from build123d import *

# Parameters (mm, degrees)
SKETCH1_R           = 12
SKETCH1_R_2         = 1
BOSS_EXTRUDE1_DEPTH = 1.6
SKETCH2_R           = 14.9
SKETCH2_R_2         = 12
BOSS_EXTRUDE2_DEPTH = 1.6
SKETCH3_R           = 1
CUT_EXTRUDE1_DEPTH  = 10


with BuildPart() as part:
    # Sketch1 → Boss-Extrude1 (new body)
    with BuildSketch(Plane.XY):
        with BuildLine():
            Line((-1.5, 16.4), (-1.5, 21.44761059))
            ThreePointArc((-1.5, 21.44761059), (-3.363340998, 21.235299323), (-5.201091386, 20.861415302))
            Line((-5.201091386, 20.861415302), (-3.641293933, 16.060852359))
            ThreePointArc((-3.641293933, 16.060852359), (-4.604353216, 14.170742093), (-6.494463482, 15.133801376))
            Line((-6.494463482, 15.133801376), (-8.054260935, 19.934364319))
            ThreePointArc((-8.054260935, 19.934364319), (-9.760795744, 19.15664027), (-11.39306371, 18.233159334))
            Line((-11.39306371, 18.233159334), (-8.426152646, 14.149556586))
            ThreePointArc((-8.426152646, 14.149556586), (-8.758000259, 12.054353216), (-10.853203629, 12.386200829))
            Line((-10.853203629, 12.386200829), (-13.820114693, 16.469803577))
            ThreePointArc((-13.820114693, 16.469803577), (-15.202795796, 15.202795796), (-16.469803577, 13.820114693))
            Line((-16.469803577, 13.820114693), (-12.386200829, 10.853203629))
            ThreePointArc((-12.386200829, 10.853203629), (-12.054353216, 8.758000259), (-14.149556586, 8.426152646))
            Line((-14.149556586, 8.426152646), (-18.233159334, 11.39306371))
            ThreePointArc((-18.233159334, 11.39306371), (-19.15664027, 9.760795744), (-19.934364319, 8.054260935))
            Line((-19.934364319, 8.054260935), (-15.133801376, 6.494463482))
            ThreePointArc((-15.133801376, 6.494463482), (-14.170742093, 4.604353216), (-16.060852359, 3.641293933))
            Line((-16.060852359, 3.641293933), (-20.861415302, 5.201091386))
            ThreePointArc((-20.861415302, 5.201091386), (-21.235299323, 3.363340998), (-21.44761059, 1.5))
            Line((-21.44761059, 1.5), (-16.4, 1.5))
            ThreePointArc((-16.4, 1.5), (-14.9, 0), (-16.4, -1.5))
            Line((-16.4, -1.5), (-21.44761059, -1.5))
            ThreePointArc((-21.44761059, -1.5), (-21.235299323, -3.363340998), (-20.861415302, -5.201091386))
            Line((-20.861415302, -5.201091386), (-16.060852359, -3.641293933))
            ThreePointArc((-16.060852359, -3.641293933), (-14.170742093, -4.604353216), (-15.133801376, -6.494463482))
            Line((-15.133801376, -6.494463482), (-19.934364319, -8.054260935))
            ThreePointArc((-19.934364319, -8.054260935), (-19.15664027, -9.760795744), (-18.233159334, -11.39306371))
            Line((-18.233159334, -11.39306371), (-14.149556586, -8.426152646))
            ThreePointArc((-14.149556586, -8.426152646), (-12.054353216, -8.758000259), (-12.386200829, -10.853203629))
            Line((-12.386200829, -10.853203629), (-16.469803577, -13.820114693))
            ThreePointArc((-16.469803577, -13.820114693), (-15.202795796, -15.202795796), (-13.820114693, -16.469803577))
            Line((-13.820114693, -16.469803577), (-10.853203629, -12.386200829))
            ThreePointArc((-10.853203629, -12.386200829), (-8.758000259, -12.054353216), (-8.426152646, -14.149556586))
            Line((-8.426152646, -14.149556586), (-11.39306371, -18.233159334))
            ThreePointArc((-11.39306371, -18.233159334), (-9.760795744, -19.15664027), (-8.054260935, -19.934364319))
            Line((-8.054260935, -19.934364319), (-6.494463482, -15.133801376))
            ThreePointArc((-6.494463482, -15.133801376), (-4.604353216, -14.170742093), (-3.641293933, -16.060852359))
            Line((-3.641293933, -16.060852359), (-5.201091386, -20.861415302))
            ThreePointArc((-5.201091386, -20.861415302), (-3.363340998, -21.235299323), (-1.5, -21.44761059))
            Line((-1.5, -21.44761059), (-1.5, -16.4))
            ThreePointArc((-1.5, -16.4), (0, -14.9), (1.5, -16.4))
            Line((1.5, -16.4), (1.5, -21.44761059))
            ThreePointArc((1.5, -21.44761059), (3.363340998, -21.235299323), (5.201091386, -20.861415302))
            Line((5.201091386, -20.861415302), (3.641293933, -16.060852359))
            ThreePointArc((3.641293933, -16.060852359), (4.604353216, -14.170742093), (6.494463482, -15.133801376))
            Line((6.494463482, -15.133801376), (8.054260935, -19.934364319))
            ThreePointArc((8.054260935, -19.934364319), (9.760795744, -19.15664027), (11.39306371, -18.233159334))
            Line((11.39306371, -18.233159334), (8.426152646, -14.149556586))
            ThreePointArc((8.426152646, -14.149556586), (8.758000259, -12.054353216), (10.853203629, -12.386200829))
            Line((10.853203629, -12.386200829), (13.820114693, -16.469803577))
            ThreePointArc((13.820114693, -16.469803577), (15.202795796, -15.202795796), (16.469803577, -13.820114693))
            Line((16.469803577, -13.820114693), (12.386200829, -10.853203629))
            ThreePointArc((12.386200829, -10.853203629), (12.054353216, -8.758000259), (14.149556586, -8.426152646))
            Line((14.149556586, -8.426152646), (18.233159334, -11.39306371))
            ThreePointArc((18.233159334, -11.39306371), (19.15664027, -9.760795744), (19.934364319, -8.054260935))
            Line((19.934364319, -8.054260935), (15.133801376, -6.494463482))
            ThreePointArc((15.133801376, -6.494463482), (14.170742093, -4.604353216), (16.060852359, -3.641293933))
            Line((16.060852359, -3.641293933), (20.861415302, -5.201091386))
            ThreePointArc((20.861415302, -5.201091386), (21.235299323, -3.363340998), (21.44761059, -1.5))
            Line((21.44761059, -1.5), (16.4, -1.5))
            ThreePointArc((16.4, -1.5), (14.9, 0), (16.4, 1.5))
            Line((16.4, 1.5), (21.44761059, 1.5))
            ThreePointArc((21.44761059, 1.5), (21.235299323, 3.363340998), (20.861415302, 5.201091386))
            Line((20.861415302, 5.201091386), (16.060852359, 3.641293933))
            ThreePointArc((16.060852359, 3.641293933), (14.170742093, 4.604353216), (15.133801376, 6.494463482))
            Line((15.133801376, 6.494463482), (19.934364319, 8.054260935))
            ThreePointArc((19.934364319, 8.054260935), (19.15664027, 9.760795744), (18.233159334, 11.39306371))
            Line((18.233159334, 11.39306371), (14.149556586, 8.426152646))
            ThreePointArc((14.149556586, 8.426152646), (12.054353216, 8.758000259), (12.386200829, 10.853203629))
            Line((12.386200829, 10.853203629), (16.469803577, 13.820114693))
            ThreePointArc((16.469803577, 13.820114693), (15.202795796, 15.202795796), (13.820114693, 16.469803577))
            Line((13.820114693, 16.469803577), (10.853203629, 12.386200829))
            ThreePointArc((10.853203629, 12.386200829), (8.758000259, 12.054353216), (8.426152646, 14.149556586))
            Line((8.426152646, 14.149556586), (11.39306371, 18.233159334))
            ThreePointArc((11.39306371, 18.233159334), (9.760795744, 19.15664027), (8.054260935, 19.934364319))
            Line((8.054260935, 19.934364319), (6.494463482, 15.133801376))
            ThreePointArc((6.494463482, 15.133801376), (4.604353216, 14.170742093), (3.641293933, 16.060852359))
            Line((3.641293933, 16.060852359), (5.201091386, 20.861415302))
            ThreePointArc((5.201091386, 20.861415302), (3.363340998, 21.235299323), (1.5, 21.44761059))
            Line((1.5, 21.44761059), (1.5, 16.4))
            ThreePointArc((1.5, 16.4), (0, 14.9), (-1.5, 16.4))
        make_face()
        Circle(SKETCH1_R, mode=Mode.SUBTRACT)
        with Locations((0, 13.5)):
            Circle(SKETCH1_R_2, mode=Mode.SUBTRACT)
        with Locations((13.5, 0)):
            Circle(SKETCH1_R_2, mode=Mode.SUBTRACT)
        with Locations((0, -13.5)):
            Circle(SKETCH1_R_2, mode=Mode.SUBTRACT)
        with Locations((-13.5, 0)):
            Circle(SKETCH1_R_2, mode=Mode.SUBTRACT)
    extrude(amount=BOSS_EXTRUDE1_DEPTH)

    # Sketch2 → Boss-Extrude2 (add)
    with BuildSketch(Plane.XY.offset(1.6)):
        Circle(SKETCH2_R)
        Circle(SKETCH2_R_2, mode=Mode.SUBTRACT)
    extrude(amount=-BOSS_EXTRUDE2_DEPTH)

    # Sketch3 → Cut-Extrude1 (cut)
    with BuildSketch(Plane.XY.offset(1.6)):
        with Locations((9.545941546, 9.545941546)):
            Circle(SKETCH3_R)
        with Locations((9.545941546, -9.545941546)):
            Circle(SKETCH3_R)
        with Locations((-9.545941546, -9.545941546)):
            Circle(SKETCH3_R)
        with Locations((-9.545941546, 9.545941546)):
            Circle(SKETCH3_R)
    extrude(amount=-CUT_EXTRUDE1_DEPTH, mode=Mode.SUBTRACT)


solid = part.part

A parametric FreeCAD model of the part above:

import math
import FreeCAD as App
import Part
import Sketcher

V = App.Vector
Q = App.Units.Quantity

doc = App.newDocument("Part")
params = doc.addObject("Spreadsheet::Sheet", "Params")
for row, (alias, value) in enumerate([
    ("sketch1_diameter", "2 mm"),
    ("sketch1_diameter2", "24 mm"),
    ("sketch1_radius", "21.5 mm"),
    ("sketch1_radius2", "1.5 mm"),
    ("pad1_length", "1.6 mm"),
    ("sketch2_diameter", "24 mm"),
    ("sketch2_diameter2", "29.8 mm"),
    ("pad2_length", "1.6 mm"),
    ("sketch3_diameter", "2 mm"),
    ("pocket1_length", "10 mm"),
], start=1):
    params.set(f"A{row}", alias)
    params.set(f"B{row}", "=" + value)
    params.setAlias(f"B{row}", alias)

body = doc.addObject("PartDesign::Body", "Body")

# Sketch on XY plane
sketch1 = doc.addObject("Sketcher::SketchObject", "Sketch")
body.addObject(sketch1)
sketch1.AttachmentSupport = (doc.XY_Plane, [""])
sketch1.MapMode = "FlatFace"
sketch1.addGeometry(Part.LineSegment(V(-1.5, 16.4, 0), V(-1.5, 21.4, 0)), False)
sketch1.addGeometry(Part.ArcOfCircle(Part.Circle(V(0, 0, 0), V(0, 0, 1), 21.5), math.radians(94), math.radians(104)), False)
sketch1.addGeometry(Part.LineSegment(V(-5.2, 20.9, 0), V(-3.6, 16.1, 0)), False)
sketch1.addGeometry(Part.ArcOfCircle(Part.Circle(V(-5.1, 15.6, 0), V(0, 0, 1), 1.5), math.radians(-162), math.radians(18)), False)
sketch1.addGeometry(Part.LineSegment(V(-6.5, 15.1, 0), V(-8.1, 19.9, 0)), False)
sketch1.addGeometry(Part.ArcOfCircle(Part.Circle(V(0, 0, 0), V(0, 0, 1), 21.5), math.radians(112), math.radians(122)), False)
sketch1.addGeometry(Part.LineSegment(V(-11.4, 18.2, 0), V(-8.4, 14.1, 0)), False)
sketch1.addGeometry(Part.ArcOfCircle(Part.Circle(V(-9.6, 13.3, 0), V(0, 0, 1), 1.5), math.radians(-144), math.radians(36)), False)
sketch1.addGeometry(Part.LineSegment(V(-10.9, 12.4, 0), V(-13.8, 16.5, 0)), False)
sketch1.addGeometry(Part.ArcOfCircle(Part.Circle(V(0, 0, 0), V(0, 0, 1), 21.5), math.radians(130), math.radians(140)), False)
sketch1.addGeometry(Part.LineSegment(V(-16.5, 13.8, 0), V(-12.4, 10.9, 0)), False)
sketch1.addGeometry(Part.ArcOfCircle(Part.Circle(V(-13.3, 9.6, 0), V(0, 0, 1), 1.5), math.radians(-126), math.radians(54)), False)
sketch1.addGeometry(Part.LineSegment(V(-14.1, 8.4, 0), V(-18.2, 11.4, 0)), False)
sketch1.addGeometry(Part.ArcOfCircle(Part.Circle(V(0, 0, 0), V(0, 0, 1), 21.5), math.radians(148), math.radians(158)), False)
sketch1.addGeometry(Part.LineSegment(V(-19.9, 8.1, 0), V(-15.1, 6.5, 0)), False)
sketch1.addGeometry(Part.ArcOfCircle(Part.Circle(V(-15.6, 5.1, 0), V(0, 0, 1), 1.5), math.radians(-108), math.radians(72)), False)
sketch1.addGeometry(Part.LineSegment(V(-16.1, 3.6, 0), V(-20.9, 5.2, 0)), False)
sketch1.addGeometry(Part.ArcOfCircle(Part.Circle(V(0, 0, 0), V(0, 0, 1), 21.5), math.radians(166), math.radians(176)), False)
sketch1.addGeometry(Part.LineSegment(V(-21.4, 1.5, 0), V(-16.4, 1.5, 0)), False)
sketch1.addGeometry(Part.ArcOfCircle(Part.Circle(V(-16.4, 0, 0), V(0, 0, 1), 1.5), math.radians(-90), math.radians(90)), False)
sketch1.addGeometry(Part.LineSegment(V(-16.4, -1.5, 0), V(-21.4, -1.5, 0)), False)
sketch1.addGeometry(Part.ArcOfCircle(Part.Circle(V(0, 0, 0), V(0, 0, 1), 21.5), math.radians(-176), math.radians(-166)), False)
sketch1.addGeometry(Part.LineSegment(V(-20.9, -5.2, 0), V(-16.1, -3.6, 0)), False)
sketch1.addGeometry(Part.ArcOfCircle(Part.Circle(V(-15.6, -5.1, 0), V(0, 0, 1), 1.5), math.radians(-72), math.radians(108)), False)
sketch1.addGeometry(Part.LineSegment(V(-15.1, -6.5, 0), V(-19.9, -8.1, 0)), False)
sketch1.addGeometry(Part.ArcOfCircle(Part.Circle(V(0, 0, 0), V(0, 0, 1), 21.5), math.radians(-158), math.radians(-148)), False)
sketch1.addGeometry(Part.LineSegment(V(-18.2, -11.4, 0), V(-14.1, -8.4, 0)), False)
sketch1.addGeometry(Part.ArcOfCircle(Part.Circle(V(-13.3, -9.6, 0), V(0, 0, 1), 1.5), math.radians(-54), math.radians(126)), False)
sketch1.addGeometry(Part.LineSegment(V(-12.4, -10.9, 0), V(-16.5, -13.8, 0)), False)
sketch1.addGeometry(Part.ArcOfCircle(Part.Circle(V(0, 0, 0), V(0, 0, 1), 21.5), math.radians(-140), math.radians(-130)), False)
sketch1.addGeometry(Part.LineSegment(V(-13.8, -16.5, 0), V(-10.9, -12.4, 0)), False)
sketch1.addGeometry(Part.ArcOfCircle(Part.Circle(V(-9.6, -13.3, 0), V(0, 0, 1), 1.5), math.radians(-36), math.radians(144)), False)
sketch1.addGeometry(Part.LineSegment(V(-8.4, -14.1, 0), V(-11.4, -18.2, 0)), False)
sketch1.addGeometry(Part.ArcOfCircle(Part.Circle(V(0, 0, 0), V(0, 0, 1), 21.5), math.radians(-122), math.radians(-112)), False)
sketch1.addGeometry(Part.LineSegment(V(-8.1, -19.9, 0), V(-6.5, -15.1, 0)), False)
sketch1.addGeometry(Part.ArcOfCircle(Part.Circle(V(-5.1, -15.6, 0), V(0, 0, 1), 1.5), math.radians(-18), math.radians(162)), False)
sketch1.addGeometry(Part.LineSegment(V(-3.6, -16.1, 0), V(-5.2, -20.9, 0)), False)
sketch1.addGeometry(Part.ArcOfCircle(Part.Circle(V(0, 0, 0), V(0, 0, 1), 21.5), math.radians(-104), math.radians(-94)), False)
sketch1.addGeometry(Part.LineSegment(V(-1.5, -21.4, 0), V(-1.5, -16.4, 0)), False)
sketch1.addGeometry(Part.ArcOfCircle(Part.Circle(V(0, -16.4, 0), V(0, 0, 1), 1.5), math.radians(0), math.radians(180)), False)
sketch1.addGeometry(Part.LineSegment(V(1.5, -16.4, 0), V(1.5, -21.4, 0)), False)
sketch1.addGeometry(Part.ArcOfCircle(Part.Circle(V(0, 0, 0), V(0, 0, 1), 21.5), math.radians(-86), math.radians(-76)), False)
sketch1.addGeometry(Part.LineSegment(V(5.2, -20.9, 0), V(3.6, -16.1, 0)), False)
sketch1.addGeometry(Part.ArcOfCircle(Part.Circle(V(5.1, -15.6, 0), V(0, 0, 1), 1.5), math.radians(18), math.radians(198)), False)
sketch1.addGeometry(Part.LineSegment(V(6.5, -15.1, 0), V(8.1, -19.9, 0)), False)
sketch1.addGeometry(Part.ArcOfCircle(Part.Circle(V(0, 0, 0), V(0, 0, 1), 21.5), math.radians(-68), math.radians(-58)), False)
sketch1.addGeometry(Part.LineSegment(V(11.4, -18.2, 0), V(8.4, -14.1, 0)), False)
sketch1.addGeometry(Part.ArcOfCircle(Part.Circle(V(9.6, -13.3, 0), V(0, 0, 1), 1.5), math.radians(36), math.radians(216)), False)
sketch1.addGeometry(Part.LineSegment(V(10.9, -12.4, 0), V(13.8, -16.5, 0)), False)
sketch1.addGeometry(Part.ArcOfCircle(Part.Circle(V(0, 0, 0), V(0, 0, 1), 21.5), math.radians(-50), math.radians(-40)), False)
sketch1.addGeometry(Part.LineSegment(V(16.5, -13.8, 0), V(12.4, -10.9, 0)), False)
sketch1.addGeometry(Part.ArcOfCircle(Part.Circle(V(13.3, -9.6, 0), V(0, 0, 1), 1.5), math.radians(54), math.radians(234)), False)
sketch1.addGeometry(Part.LineSegment(V(14.1, -8.4, 0), V(18.2, -11.4, 0)), False)
sketch1.addGeometry(Part.ArcOfCircle(Part.Circle(V(0, 0, 0), V(0, 0, 1), 21.5), math.radians(-32), math.radians(-22)), False)
sketch1.addGeometry(Part.LineSegment(V(19.9, -8.1, 0), V(15.1, -6.5, 0)), False)
sketch1.addGeometry(Part.ArcOfCircle(Part.Circle(V(15.6, -5.1, 0), V(0, 0, 1), 1.5), math.radians(72), math.radians(252)), False)
sketch1.addGeometry(Part.LineSegment(V(16.1, -3.6, 0), V(20.9, -5.2, 0)), False)
sketch1.addGeometry(Part.ArcOfCircle(Part.Circle(V(0, 0, 0), V(0, 0, 1), 21.5), math.radians(-14), math.radians(-4)), False)
sketch1.addGeometry(Part.LineSegment(V(21.4, -1.5, 0), V(16.4, -1.5, 0)), False)
sketch1.addGeometry(Part.ArcOfCircle(Part.Circle(V(16.4, 0, 0), V(0, 0, 1), 1.5), math.radians(90), math.radians(270)), False)
sketch1.addGeometry(Part.LineSegment(V(16.4, 1.5, 0), V(21.4, 1.5, 0)), False)
sketch1.addGeometry(Part.ArcOfCircle(Part.Circle(V(0, 0, 0), V(0, 0, 1), 21.5), math.radians(4), math.radians(14)), False)
sketch1.addGeometry(Part.LineSegment(V(20.9, 5.2, 0), V(16.1, 3.6, 0)), False)
sketch1.addGeometry(Part.ArcOfCircle(Part.Circle(V(15.6, 5.1, 0), V(0, 0, 1), 1.5), math.radians(108), math.radians(288)), False)
sketch1.addGeometry(Part.LineSegment(V(15.1, 6.5, 0), V(19.9, 8.1, 0)), False)
sketch1.addGeometry(Part.ArcOfCircle(Part.Circle(V(0, 0, 0), V(0, 0, 1), 21.5), math.radians(22), math.radians(32)), False)
sketch1.addGeometry(Part.LineSegment(V(18.2, 11.4, 0), V(14.1, 8.4, 0)), False)
sketch1.addGeometry(Part.ArcOfCircle(Part.Circle(V(13.3, 9.6, 0), V(0, 0, 1), 1.5), math.radians(126), math.radians(306)), False)
sketch1.addGeometry(Part.LineSegment(V(12.4, 10.9, 0), V(16.5, 13.8, 0)), False)
sketch1.addGeometry(Part.ArcOfCircle(Part.Circle(V(0, 0, 0), V(0, 0, 1), 21.5), math.radians(40), math.radians(50)), False)
sketch1.addGeometry(Part.LineSegment(V(13.8, 16.5, 0), V(10.9, 12.4, 0)), False)
sketch1.addGeometry(Part.ArcOfCircle(Part.Circle(V(9.6, 13.3, 0), V(0, 0, 1), 1.5), math.radians(144), math.radians(324)), False)
sketch1.addGeometry(Part.LineSegment(V(8.4, 14.1, 0), V(11.4, 18.2, 0)), False)
sketch1.addGeometry(Part.ArcOfCircle(Part.Circle(V(0, 0, 0), V(0, 0, 1), 21.5), math.radians(58), math.radians(68)), False)
sketch1.addGeometry(Part.LineSegment(V(8.1, 19.9, 0), V(6.5, 15.1, 0)), False)
sketch1.addGeometry(Part.ArcOfCircle(Part.Circle(V(5.1, 15.6, 0), V(0, 0, 1), 1.5), math.radians(162), math.radians(342)), False)
sketch1.addGeometry(Part.LineSegment(V(3.6, 16.1, 0), V(5.2, 20.9, 0)), False)
sketch1.addGeometry(Part.ArcOfCircle(Part.Circle(V(0, 0, 0), V(0, 0, 1), 21.5), math.radians(76), math.radians(86)), False)
sketch1.addGeometry(Part.LineSegment(V(1.5, 21.4, 0), V(1.5, 16.4, 0)), False)
sketch1.addGeometry(Part.ArcOfCircle(Part.Circle(V(0, 16.4, 0), V(0, 0, 1), 1.5), math.radians(180), math.radians(360)), False)
sketch1.addGeometry(Part.Circle(V(0, -13.5, 0), V(0, 0, 1), 1), False)
sketch1.addGeometry(Part.Circle(V(-13.5, 0, 0), V(0, 0, 1), 1), False)
sketch1.addGeometry(Part.Circle(V(0, 0, 0), V(0, 0, 1), 12), False)
sketch1.addGeometry(Part.Circle(V(13.5, 0, 0), V(0, 0, 1), 1), False)
sketch1.addGeometry(Part.Circle(V(0, 13.5, 0), V(0, 0, 1), 1), False)
sketch1.addConstraint(Sketcher.Constraint("Coincident", 0, 2, 1, 1))
sketch1.addConstraint(Sketcher.Constraint("Coincident", 1, 2, 2, 1))
sketch1.addConstraint(Sketcher.Constraint("Tangent", 2, 2, 3, 2))
sketch1.addConstraint(Sketcher.Constraint("Tangent", 3, 1, 4, 1))
sketch1.addConstraint(Sketcher.Constraint("Coincident", 4, 2, 5, 1))
sketch1.addConstraint(Sketcher.Constraint("Coincident", 5, 2, 6, 1))
sketch1.addConstraint(Sketcher.Constraint("Tangent", 6, 2, 7, 2))
sketch1.addConstraint(Sketcher.Constraint("Tangent", 7, 1, 8, 1))
sketch1.addConstraint(Sketcher.Constraint("Coincident", 8, 2, 9, 1))
sketch1.addConstraint(Sketcher.Constraint("Coincident", 9, 2, 10, 1))
sketch1.addConstraint(Sketcher.Constraint("Tangent", 10, 2, 11, 2))
sketch1.addConstraint(Sketcher.Constraint("Tangent", 11, 1, 12, 1))
sketch1.addConstraint(Sketcher.Constraint("Coincident", 12, 2, 13, 1))
sketch1.addConstraint(Sketcher.Constraint("Coincident", 13, 2, 14, 1))
sketch1.addConstraint(Sketcher.Constraint("Tangent", 14, 2, 15, 2))
sketch1.addConstraint(Sketcher.Constraint("Tangent", 15, 1, 16, 1))
sketch1.addConstraint(Sketcher.Constraint("Coincident", 16, 2, 17, 1))
sketch1.addConstraint(Sketcher.Constraint("Coincident", 17, 2, 18, 1))
sketch1.addConstraint(Sketcher.Constraint("Tangent", 18, 2, 19, 2))
sketch1.addConstraint(Sketcher.Constraint("Tangent", 19, 1, 20, 1))
sketch1.addConstraint(Sketcher.Constraint("Coincident", 20, 2, 21, 1))
sketch1.addConstraint(Sketcher.Constraint("Coincident", 21, 2, 22, 1))
sketch1.addConstraint(Sketcher.Constraint("Tangent", 22, 2, 23, 2))
sketch1.addConstraint(Sketcher.Constraint("Tangent", 23, 1, 24, 1))
sketch1.addConstraint(Sketcher.Constraint("Coincident", 24, 2, 25, 1))
sketch1.addConstraint(Sketcher.Constraint("Coincident", 25, 2, 26, 1))
sketch1.addConstraint(Sketcher.Constraint("Tangent", 26, 2, 27, 2))
sketch1.addConstraint(Sketcher.Constraint("Tangent", 27, 1, 28, 1))
sketch1.addConstraint(Sketcher.Constraint("Coincident", 28, 2, 29, 1))
sketch1.addConstraint(Sketcher.Constraint("Coincident", 29, 2, 30, 1))
sketch1.addConstraint(Sketcher.Constraint("Tangent", 30, 2, 31, 2))
sketch1.addConstraint(Sketcher.Constraint("Tangent", 31, 1, 32, 1))
sketch1.addConstraint(Sketcher.Constraint("Coincident", 32, 2, 33, 1))
sketch1.addConstraint(Sketcher.Constraint("Coincident", 33, 2, 34, 1))
sketch1.addConstraint(Sketcher.Constraint("Tangent", 34, 2, 35, 2))
sketch1.addConstraint(Sketcher.Constraint("Tangent", 35, 1, 36, 1))
sketch1.addConstraint(Sketcher.Constraint("Coincident", 36, 2, 37, 1))
sketch1.addConstraint(Sketcher.Constraint("Coincident", 37, 2, 38, 1))
sketch1.addConstraint(Sketcher.Constraint("Tangent", 38, 2, 39, 2))
sketch1.addConstraint(Sketcher.Constraint("Tangent", 39, 1, 40, 1))
sketch1.addConstraint(Sketcher.Constraint("Coincident", 40, 2, 41, 1))
sketch1.addConstraint(Sketcher.Constraint("Coincident", 41, 2, 42, 1))
sketch1.addConstraint(Sketcher.Constraint("Tangent", 42, 2, 43, 2))
sketch1.addConstraint(Sketcher.Constraint("Tangent", 43, 1, 44, 1))
sketch1.addConstraint(Sketcher.Constraint("Coincident", 44, 2, 45, 1))
sketch1.addConstraint(Sketcher.Constraint("Coincident", 45, 2, 46, 1))
sketch1.addConstraint(Sketcher.Constraint("Tangent", 46, 2, 47, 2))
sketch1.addConstraint(Sketcher.Constraint("Tangent", 47, 1, 48, 1))
sketch1.addConstraint(Sketcher.Constraint("Coincident", 48, 2, 49, 1))
sketch1.addConstraint(Sketcher.Constraint("Coincident", 49, 2, 50, 1))
sketch1.addConstraint(Sketcher.Constraint("Tangent", 50, 2, 51, 2))
sketch1.addConstraint(Sketcher.Constraint("Tangent", 51, 1, 52, 1))
sketch1.addConstraint(Sketcher.Constraint("Coincident", 52, 2, 53, 1))
sketch1.addConstraint(Sketcher.Constraint("Coincident", 53, 2, 54, 1))
sketch1.addConstraint(Sketcher.Constraint("Tangent", 54, 2, 55, 2))
sketch1.addConstraint(Sketcher.Constraint("Tangent", 55, 1, 56, 1))
sketch1.addConstraint(Sketcher.Constraint("Coincident", 56, 2, 57, 1))
sketch1.addConstraint(Sketcher.Constraint("Coincident", 57, 2, 58, 1))
sketch1.addConstraint(Sketcher.Constraint("Tangent", 58, 2, 59, 2))
sketch1.addConstraint(Sketcher.Constraint("Tangent", 59, 1, 60, 1))
sketch1.addConstraint(Sketcher.Constraint("Coincident", 60, 2, 61, 1))
sketch1.addConstraint(Sketcher.Constraint("Coincident", 61, 2, 62, 1))
sketch1.addConstraint(Sketcher.Constraint("Tangent", 62, 2, 63, 2))
sketch1.addConstraint(Sketcher.Constraint("Tangent", 63, 1, 64, 1))
sketch1.addConstraint(Sketcher.Constraint("Coincident", 64, 2, 65, 1))
sketch1.addConstraint(Sketcher.Constraint("Coincident", 65, 2, 66, 1))
sketch1.addConstraint(Sketcher.Constraint("Tangent", 66, 2, 67, 2))
sketch1.addConstraint(Sketcher.Constraint("Tangent", 67, 1, 68, 1))
sketch1.addConstraint(Sketcher.Constraint("Coincident", 68, 2, 69, 1))
sketch1.addConstraint(Sketcher.Constraint("Coincident", 69, 2, 70, 1))
sketch1.addConstraint(Sketcher.Constraint("Tangent", 70, 2, 71, 2))
sketch1.addConstraint(Sketcher.Constraint("Tangent", 71, 1, 72, 1))
sketch1.addConstraint(Sketcher.Constraint("Coincident", 72, 2, 73, 1))
sketch1.addConstraint(Sketcher.Constraint("Coincident", 73, 2, 74, 1))
sketch1.addConstraint(Sketcher.Constraint("Tangent", 74, 2, 75, 2))
sketch1.addConstraint(Sketcher.Constraint("Tangent", 75, 1, 76, 1))
sketch1.addConstraint(Sketcher.Constraint("Coincident", 76, 2, 77, 1))
sketch1.addConstraint(Sketcher.Constraint("Coincident", 77, 2, 78, 1))
sketch1.addConstraint(Sketcher.Constraint("Tangent", 78, 2, 79, 2))
sketch1.addConstraint(Sketcher.Constraint("Tangent", 79, 1, 0, 1))
sketch1.addConstraint(Sketcher.Constraint("Vertical", 0))
sketch1.addConstraint(Sketcher.Constraint("Horizontal", 18))
sketch1.addConstraint(Sketcher.Constraint("Horizontal", 20))
sketch1.addConstraint(Sketcher.Constraint("Vertical", 38))
sketch1.addConstraint(Sketcher.Constraint("Vertical", 40))
sketch1.addConstraint(Sketcher.Constraint("Horizontal", 58))
sketch1.addConstraint(Sketcher.Constraint("Horizontal", 60))
sketch1.addConstraint(Sketcher.Constraint("Vertical", 78))
sketch1.addConstraint(Sketcher.Constraint("Coincident", 1, 3, -1, 1))
sketch1.addConstraint(Sketcher.Constraint("Coincident", 5, 3, -1, 1))
sketch1.addConstraint(Sketcher.Constraint("Coincident", 9, 3, -1, 1))
sketch1.addConstraint(Sketcher.Constraint("Coincident", 13, 3, -1, 1))
sketch1.addConstraint(Sketcher.Constraint("Coincident", 17, 3, -1, 1))
sketch1.addConstraint(Sketcher.Constraint("Coincident", 21, 3, -1, 1))
sketch1.addConstraint(Sketcher.Constraint("Coincident", 25, 3, -1, 1))
sketch1.addConstraint(Sketcher.Constraint("Coincident", 29, 3, -1, 1))
sketch1.addConstraint(Sketcher.Constraint("Coincident", 33, 3, -1, 1))
sketch1.addConstraint(Sketcher.Constraint("Coincident", 37, 3, -1, 1))
sketch1.addConstraint(Sketcher.Constraint("Coincident", 41, 3, -1, 1))
sketch1.addConstraint(Sketcher.Constraint("Coincident", 45, 3, -1, 1))
sketch1.addConstraint(Sketcher.Constraint("Coincident", 49, 3, -1, 1))
sketch1.addConstraint(Sketcher.Constraint("Coincident", 53, 3, -1, 1))
sketch1.addConstraint(Sketcher.Constraint("Coincident", 57, 3, -1, 1))
sketch1.addConstraint(Sketcher.Constraint("Coincident", 61, 3, -1, 1))
sketch1.addConstraint(Sketcher.Constraint("Coincident", 65, 3, -1, 1))
sketch1.addConstraint(Sketcher.Constraint("Coincident", 69, 3, -1, 1))
sketch1.addConstraint(Sketcher.Constraint("Coincident", 73, 3, -1, 1))
sketch1.addConstraint(Sketcher.Constraint("Coincident", 77, 3, -1, 1))
sketch1.addConstraint(Sketcher.Constraint("Coincident", 82, 3, -1, 1))
sketch1.addConstraint(Sketcher.Constraint("Equal", 1, 5))
sketch1.addConstraint(Sketcher.Constraint("Equal", 3, 7))
sketch1.addConstraint(Sketcher.Constraint("Equal", 5, 9))
sketch1.addConstraint(Sketcher.Constraint("Equal", 7, 11))
sketch1.addConstraint(Sketcher.Constraint("Equal", 9, 13))
sketch1.addConstraint(Sketcher.Constraint("Equal", 11, 15))
sketch1.addConstraint(Sketcher.Constraint("Equal", 13, 17))
sketch1.addConstraint(Sketcher.Constraint("Equal", 15, 19))
sketch1.addConstraint(Sketcher.Constraint("Equal", 17, 21))
sketch1.addConstraint(Sketcher.Constraint("Equal", 19, 23))
sketch1.addConstraint(Sketcher.Constraint("Equal", 21, 25))
sketch1.addConstraint(Sketcher.Constraint("Equal", 23, 27))
sketch1.addConstraint(Sketcher.Constraint("Equal", 25, 29))
sketch1.addConstraint(Sketcher.Constraint("Equal", 27, 31))
sketch1.addConstraint(Sketcher.Constraint("Equal", 29, 33))
sketch1.addConstraint(Sketcher.Constraint("Equal", 31, 35))
sketch1.addConstraint(Sketcher.Constraint("Equal", 33, 37))
sketch1.addConstraint(Sketcher.Constraint("Equal", 35, 39))
sketch1.addConstraint(Sketcher.Constraint("Equal", 37, 41))
sketch1.addConstraint(Sketcher.Constraint("Equal", 39, 43))
sketch1.addConstraint(Sketcher.Constraint("Equal", 41, 45))
sketch1.addConstraint(Sketcher.Constraint("Equal", 43, 47))
sketch1.addConstraint(Sketcher.Constraint("Equal", 45, 49))
sketch1.addConstraint(Sketcher.Constraint("Equal", 47, 51))
sketch1.addConstraint(Sketcher.Constraint("Equal", 49, 53))
sketch1.addConstraint(Sketcher.Constraint("Equal", 51, 55))
sketch1.addConstraint(Sketcher.Constraint("Equal", 53, 57))
sketch1.addConstraint(Sketcher.Constraint("Equal", 55, 59))
sketch1.addConstraint(Sketcher.Constraint("Equal", 57, 61))
sketch1.addConstraint(Sketcher.Constraint("Equal", 59, 63))
sketch1.addConstraint(Sketcher.Constraint("Equal", 61, 65))
sketch1.addConstraint(Sketcher.Constraint("Equal", 63, 67))
sketch1.addConstraint(Sketcher.Constraint("Equal", 65, 69))
sketch1.addConstraint(Sketcher.Constraint("Equal", 67, 71))
sketch1.addConstraint(Sketcher.Constraint("Equal", 69, 73))
sketch1.addConstraint(Sketcher.Constraint("Equal", 71, 75))
sketch1.addConstraint(Sketcher.Constraint("Equal", 73, 77))
sketch1.addConstraint(Sketcher.Constraint("Equal", 75, 79))
sketch1.addConstraint(Sketcher.Constraint("Equal", 80, 81))
sketch1.addConstraint(Sketcher.Constraint("Equal", 81, 83))
sketch1.addConstraint(Sketcher.Constraint("Equal", 83, 84))
sketch1.addConstraint(Sketcher.Constraint("Symmetric", 3, 3, 43, 3, -1, 1))
sketch1.addConstraint(Sketcher.Constraint("Symmetric", 7, 3, 47, 3, -1, 1))
sketch1.addConstraint(Sketcher.Constraint("Symmetric", 11, 3, 51, 3, -1, 1))
sketch1.addConstraint(Sketcher.Constraint("Symmetric", 15, 3, 55, 3, -1, 1))
sketch1.addConstraint(Sketcher.Constraint("Symmetric", 19, 3, 59, 3, -1, 1))
sketch1.addConstraint(Sketcher.Constraint("Symmetric", 23, 3, 63, 3, -1, 1))
sketch1.addConstraint(Sketcher.Constraint("Symmetric", 27, 3, 67, 3, -1, 1))
sketch1.addConstraint(Sketcher.Constraint("Symmetric", 31, 3, 71, 3, -1, 1))
sketch1.addConstraint(Sketcher.Constraint("Symmetric", 35, 3, 75, 3, -1, 1))
sketch1.addConstraint(Sketcher.Constraint("Symmetric", 39, 3, 79, 3, -1, 1))
sketch1.addConstraint(Sketcher.Constraint("Symmetric", 81, 3, 83, 3, -1, 1))
sketch1.addConstraint(Sketcher.Constraint("Symmetric", 80, 3, 84, 3, -1, 1))
sketch1.addConstraint(Sketcher.Constraint("Symmetric", 35, 3, 43, 3, -2))
sketch1.addConstraint(Sketcher.Constraint("Symmetric", 31, 3, 47, 3, -2))
sketch1.addConstraint(Sketcher.Constraint("Symmetric", 27, 3, 51, 3, -2))
sketch1.addConstraint(Sketcher.Constraint("Symmetric", 23, 3, 55, 3, -2))
sketch1.addConstraint(Sketcher.Constraint("PointOnObject", 19, 3, -1))
sketch1.addConstraint(Sketcher.Constraint("PointOnObject", 39, 3, -2))
sketch1.addConstraint(Sketcher.Constraint("PointOnObject", 80, 3, -2))
sketch1.addConstraint(Sketcher.Constraint("PointOnObject", 81, 3, -1))
sketch1.addConstraint(Sketcher.Constraint("Parallel", 2, 4))
sketch1.addConstraint(Sketcher.Constraint("Parallel", 6, 8))
sketch1.addConstraint(Sketcher.Constraint("Parallel", 10, 12))
sketch1.addConstraint(Sketcher.Constraint("Parallel", 14, 16))
sketch1.addConstraint(Sketcher.Constraint("Perpendicular", 4, 22))
sketch1.addConstraint(Sketcher.Constraint("Parallel", 22, 24))
sketch1.addConstraint(Sketcher.Constraint("Perpendicular", 8, 26))
sketch1.addConstraint(Sketcher.Constraint("Parallel", 26, 28))
sketch1.addConstraint(Sketcher.Constraint("Perpendicular", 12, 30))
sketch1.addConstraint(Sketcher.Constraint("Parallel", 30, 32))
sketch1.addConstraint(Sketcher.Constraint("Perpendicular", 16, 34))
sketch1.addConstraint(Sketcher.Constraint("Parallel", 34, 36))
sketch1.addConstraint(Sketcher.Constraint("Perpendicular", 24, 42))
sketch1.addConstraint(Sketcher.Constraint("Parallel", 42, 44))
sketch1.addConstraint(Sketcher.Constraint("Perpendicular", 28, 46))
sketch1.addConstraint(Sketcher.Constraint("Parallel", 46, 48))
sketch1.addConstraint(Sketcher.Constraint("Perpendicular", 32, 50))
sketch1.addConstraint(Sketcher.Constraint("Parallel", 50, 52))
sketch1.addConstraint(Sketcher.Constraint("Perpendicular", 36, 54))
sketch1.addConstraint(Sketcher.Constraint("Parallel", 54, 56))
sketch1.addConstraint(Sketcher.Constraint("Perpendicular", 44, 62))
sketch1.addConstraint(Sketcher.Constraint("Parallel", 62, 64))
sketch1.addConstraint(Sketcher.Constraint("Perpendicular", 48, 66))
sketch1.addConstraint(Sketcher.Constraint("Parallel", 66, 68))
sketch1.addConstraint(Sketcher.Constraint("Perpendicular", 52, 70))
sketch1.addConstraint(Sketcher.Constraint("Parallel", 70, 72))
sketch1.addConstraint(Sketcher.Constraint("Perpendicular", 56, 74))
sketch1.addConstraint(Sketcher.Constraint("Parallel", 74, 76))
sketch1.addConstraint(Sketcher.Constraint("Horizontal", 36, 2, 41, 2))
sketch1.addConstraint(Sketcher.Constraint("Horizontal", 32, 2, 45, 2))
sketch1.addConstraint(Sketcher.Constraint("Equal", 60, 0))
sketch1.addConstraint(Sketcher.Constraint("Equal", 2, 4))
sketch1.addConstraint(Sketcher.Constraint("Equal", 4, 6))
sketch1.addConstraint(Sketcher.Constraint("Equal", 6, 8))
sketch1.addConstraint(Sketcher.Constraint("Equal", 8, 10))
sketch1.addConstraint(Sketcher.Constraint("Equal", 10, 12))
sketch1.addConstraint(Sketcher.Constraint("Equal", 12, 14))
sketch1.addConstraint(Sketcher.Constraint("Equal", 14, 16))
sketch1.addConstraint(Sketcher.Constraint("Diameter", 80, 2.0))
sketch1.addConstraint(Sketcher.Constraint("Diameter", 82, 24.0))
sketch1.addConstraint(Sketcher.Constraint("Radius", 1, 21.5))
sketch1.addConstraint(Sketcher.Constraint("Radius", 3, 1.5))
sketch1.addConstraint(Sketcher.Constraint("Angle", 2, Q("-72 deg")))
sketch1.addConstraint(Sketcher.Constraint("Angle", 6, Q("-54 deg")))
sketch1.addConstraint(Sketcher.Constraint("DistanceX", 19, 3, -1, 1, 16.4))
sketch1.addConstraint(Sketcher.Constraint("DistanceY", 80, 3, -1, 1, 13.5))
sketch1.addConstraint(Sketcher.Constraint("DistanceX", 81, 3, -1, 1, 13.5))
sketch1.addConstraint(Sketcher.Constraint("DistanceY", -1, 1, 3, 1, 15.133801))
sketch1.setExpression("Constraints[208]", "Params.sketch1_diameter")
sketch1.setExpression("Constraints[209]", "Params.sketch1_diameter2")
sketch1.setExpression("Constraints[210]", "Params.sketch1_radius")
sketch1.setExpression("Constraints[211]", "Params.sketch1_radius2")
pad1 = doc.addObject("PartDesign::Pad", "Pad")
body.addObject(pad1)
pad1.Profile = sketch1
pad1.setExpression("Length", "Params.pad1_length")

# Sketch on XY plane
sketch2 = doc.addObject("Sketcher::SketchObject", "Sketch001")
body.addObject(sketch2)
sketch2.AttachmentSupport = (doc.XY_Plane, [""])
sketch2.MapMode = "FlatFace"
sketch2.AttachmentOffset = App.Placement(V(0, 0, 1.6), App.Rotation())
sketch2.addGeometry(Part.Circle(V(0, 0, 0), V(0, 0, 1), 15), False)
sketch2.addGeometry(Part.Circle(V(0, 0, 0), V(0, 0, 1), 12), False)
sketch2.addConstraint(Sketcher.Constraint("Coincident", 0, 3, -1, 1))
sketch2.addConstraint(Sketcher.Constraint("Coincident", 1, 3, -1, 1))
sketch2.addConstraint(Sketcher.Constraint("Diameter", 1, 24.0))
sketch2.addConstraint(Sketcher.Constraint("Diameter", 0, 29.8))
sketch2.setExpression("Constraints[2]", "Params.sketch2_diameter")
sketch2.setExpression("Constraints[3]", "Params.sketch2_diameter2")
pad2 = doc.addObject("PartDesign::Pad", "Pad001")
body.addObject(pad2)
pad2.Profile = sketch2
pad2.setExpression("Length", "Params.pad2_length")
pad2.Reversed = True

# Sketch on XY plane
sketch3 = doc.addObject("Sketcher::SketchObject", "Sketch002")
body.addObject(sketch3)
sketch3.AttachmentSupport = (doc.XY_Plane, [""])
sketch3.MapMode = "FlatFace"
sketch3.AttachmentOffset = App.Placement(V(0, 0, 1.6), App.Rotation())
sketch3.addGeometry(Part.Circle(V(9.5, 9.5, 0), V(0, 0, 1), 1), False)
sketch3.addGeometry(Part.Circle(V(9.5, -9.5, 0), V(0, 0, 1), 1), False)
sketch3.addGeometry(Part.Circle(V(-9.5, -9.5, 0), V(0, 0, 1), 1), False)
sketch3.addGeometry(Part.Circle(V(-9.5, 9.5, 0), V(0, 0, 1), 1), False)
sketch3.addConstraint(Sketcher.Constraint("Equal", 0, 1))
sketch3.addConstraint(Sketcher.Constraint("Equal", 1, 2))
sketch3.addConstraint(Sketcher.Constraint("Equal", 2, 3))
sketch3.addConstraint(Sketcher.Constraint("Symmetric", 0, 3, 2, 3, -1, 1))
sketch3.addConstraint(Sketcher.Constraint("Symmetric", 1, 3, 3, 3, -1, 1))
sketch3.addConstraint(Sketcher.Constraint("Symmetric", 1, 3, 2, 3, -2))
sketch3.addConstraint(Sketcher.Constraint("Diameter", 0, 2.0))
sketch3.addConstraint(Sketcher.Constraint("DistanceX", -1, 1, 0, 3, 9.545942))
sketch3.addConstraint(Sketcher.Constraint("DistanceY", -1, 1, 0, 3, 9.545942))
sketch3.setExpression("Constraints[6]", "Params.sketch3_diameter")
pocket1 = doc.addObject("PartDesign::Pocket", "Pocket")
body.addObject(pocket1)
pocket1.Profile = sketch3
pocket1.setExpression("Length", "Params.pocket1_length")

doc.recompute()
